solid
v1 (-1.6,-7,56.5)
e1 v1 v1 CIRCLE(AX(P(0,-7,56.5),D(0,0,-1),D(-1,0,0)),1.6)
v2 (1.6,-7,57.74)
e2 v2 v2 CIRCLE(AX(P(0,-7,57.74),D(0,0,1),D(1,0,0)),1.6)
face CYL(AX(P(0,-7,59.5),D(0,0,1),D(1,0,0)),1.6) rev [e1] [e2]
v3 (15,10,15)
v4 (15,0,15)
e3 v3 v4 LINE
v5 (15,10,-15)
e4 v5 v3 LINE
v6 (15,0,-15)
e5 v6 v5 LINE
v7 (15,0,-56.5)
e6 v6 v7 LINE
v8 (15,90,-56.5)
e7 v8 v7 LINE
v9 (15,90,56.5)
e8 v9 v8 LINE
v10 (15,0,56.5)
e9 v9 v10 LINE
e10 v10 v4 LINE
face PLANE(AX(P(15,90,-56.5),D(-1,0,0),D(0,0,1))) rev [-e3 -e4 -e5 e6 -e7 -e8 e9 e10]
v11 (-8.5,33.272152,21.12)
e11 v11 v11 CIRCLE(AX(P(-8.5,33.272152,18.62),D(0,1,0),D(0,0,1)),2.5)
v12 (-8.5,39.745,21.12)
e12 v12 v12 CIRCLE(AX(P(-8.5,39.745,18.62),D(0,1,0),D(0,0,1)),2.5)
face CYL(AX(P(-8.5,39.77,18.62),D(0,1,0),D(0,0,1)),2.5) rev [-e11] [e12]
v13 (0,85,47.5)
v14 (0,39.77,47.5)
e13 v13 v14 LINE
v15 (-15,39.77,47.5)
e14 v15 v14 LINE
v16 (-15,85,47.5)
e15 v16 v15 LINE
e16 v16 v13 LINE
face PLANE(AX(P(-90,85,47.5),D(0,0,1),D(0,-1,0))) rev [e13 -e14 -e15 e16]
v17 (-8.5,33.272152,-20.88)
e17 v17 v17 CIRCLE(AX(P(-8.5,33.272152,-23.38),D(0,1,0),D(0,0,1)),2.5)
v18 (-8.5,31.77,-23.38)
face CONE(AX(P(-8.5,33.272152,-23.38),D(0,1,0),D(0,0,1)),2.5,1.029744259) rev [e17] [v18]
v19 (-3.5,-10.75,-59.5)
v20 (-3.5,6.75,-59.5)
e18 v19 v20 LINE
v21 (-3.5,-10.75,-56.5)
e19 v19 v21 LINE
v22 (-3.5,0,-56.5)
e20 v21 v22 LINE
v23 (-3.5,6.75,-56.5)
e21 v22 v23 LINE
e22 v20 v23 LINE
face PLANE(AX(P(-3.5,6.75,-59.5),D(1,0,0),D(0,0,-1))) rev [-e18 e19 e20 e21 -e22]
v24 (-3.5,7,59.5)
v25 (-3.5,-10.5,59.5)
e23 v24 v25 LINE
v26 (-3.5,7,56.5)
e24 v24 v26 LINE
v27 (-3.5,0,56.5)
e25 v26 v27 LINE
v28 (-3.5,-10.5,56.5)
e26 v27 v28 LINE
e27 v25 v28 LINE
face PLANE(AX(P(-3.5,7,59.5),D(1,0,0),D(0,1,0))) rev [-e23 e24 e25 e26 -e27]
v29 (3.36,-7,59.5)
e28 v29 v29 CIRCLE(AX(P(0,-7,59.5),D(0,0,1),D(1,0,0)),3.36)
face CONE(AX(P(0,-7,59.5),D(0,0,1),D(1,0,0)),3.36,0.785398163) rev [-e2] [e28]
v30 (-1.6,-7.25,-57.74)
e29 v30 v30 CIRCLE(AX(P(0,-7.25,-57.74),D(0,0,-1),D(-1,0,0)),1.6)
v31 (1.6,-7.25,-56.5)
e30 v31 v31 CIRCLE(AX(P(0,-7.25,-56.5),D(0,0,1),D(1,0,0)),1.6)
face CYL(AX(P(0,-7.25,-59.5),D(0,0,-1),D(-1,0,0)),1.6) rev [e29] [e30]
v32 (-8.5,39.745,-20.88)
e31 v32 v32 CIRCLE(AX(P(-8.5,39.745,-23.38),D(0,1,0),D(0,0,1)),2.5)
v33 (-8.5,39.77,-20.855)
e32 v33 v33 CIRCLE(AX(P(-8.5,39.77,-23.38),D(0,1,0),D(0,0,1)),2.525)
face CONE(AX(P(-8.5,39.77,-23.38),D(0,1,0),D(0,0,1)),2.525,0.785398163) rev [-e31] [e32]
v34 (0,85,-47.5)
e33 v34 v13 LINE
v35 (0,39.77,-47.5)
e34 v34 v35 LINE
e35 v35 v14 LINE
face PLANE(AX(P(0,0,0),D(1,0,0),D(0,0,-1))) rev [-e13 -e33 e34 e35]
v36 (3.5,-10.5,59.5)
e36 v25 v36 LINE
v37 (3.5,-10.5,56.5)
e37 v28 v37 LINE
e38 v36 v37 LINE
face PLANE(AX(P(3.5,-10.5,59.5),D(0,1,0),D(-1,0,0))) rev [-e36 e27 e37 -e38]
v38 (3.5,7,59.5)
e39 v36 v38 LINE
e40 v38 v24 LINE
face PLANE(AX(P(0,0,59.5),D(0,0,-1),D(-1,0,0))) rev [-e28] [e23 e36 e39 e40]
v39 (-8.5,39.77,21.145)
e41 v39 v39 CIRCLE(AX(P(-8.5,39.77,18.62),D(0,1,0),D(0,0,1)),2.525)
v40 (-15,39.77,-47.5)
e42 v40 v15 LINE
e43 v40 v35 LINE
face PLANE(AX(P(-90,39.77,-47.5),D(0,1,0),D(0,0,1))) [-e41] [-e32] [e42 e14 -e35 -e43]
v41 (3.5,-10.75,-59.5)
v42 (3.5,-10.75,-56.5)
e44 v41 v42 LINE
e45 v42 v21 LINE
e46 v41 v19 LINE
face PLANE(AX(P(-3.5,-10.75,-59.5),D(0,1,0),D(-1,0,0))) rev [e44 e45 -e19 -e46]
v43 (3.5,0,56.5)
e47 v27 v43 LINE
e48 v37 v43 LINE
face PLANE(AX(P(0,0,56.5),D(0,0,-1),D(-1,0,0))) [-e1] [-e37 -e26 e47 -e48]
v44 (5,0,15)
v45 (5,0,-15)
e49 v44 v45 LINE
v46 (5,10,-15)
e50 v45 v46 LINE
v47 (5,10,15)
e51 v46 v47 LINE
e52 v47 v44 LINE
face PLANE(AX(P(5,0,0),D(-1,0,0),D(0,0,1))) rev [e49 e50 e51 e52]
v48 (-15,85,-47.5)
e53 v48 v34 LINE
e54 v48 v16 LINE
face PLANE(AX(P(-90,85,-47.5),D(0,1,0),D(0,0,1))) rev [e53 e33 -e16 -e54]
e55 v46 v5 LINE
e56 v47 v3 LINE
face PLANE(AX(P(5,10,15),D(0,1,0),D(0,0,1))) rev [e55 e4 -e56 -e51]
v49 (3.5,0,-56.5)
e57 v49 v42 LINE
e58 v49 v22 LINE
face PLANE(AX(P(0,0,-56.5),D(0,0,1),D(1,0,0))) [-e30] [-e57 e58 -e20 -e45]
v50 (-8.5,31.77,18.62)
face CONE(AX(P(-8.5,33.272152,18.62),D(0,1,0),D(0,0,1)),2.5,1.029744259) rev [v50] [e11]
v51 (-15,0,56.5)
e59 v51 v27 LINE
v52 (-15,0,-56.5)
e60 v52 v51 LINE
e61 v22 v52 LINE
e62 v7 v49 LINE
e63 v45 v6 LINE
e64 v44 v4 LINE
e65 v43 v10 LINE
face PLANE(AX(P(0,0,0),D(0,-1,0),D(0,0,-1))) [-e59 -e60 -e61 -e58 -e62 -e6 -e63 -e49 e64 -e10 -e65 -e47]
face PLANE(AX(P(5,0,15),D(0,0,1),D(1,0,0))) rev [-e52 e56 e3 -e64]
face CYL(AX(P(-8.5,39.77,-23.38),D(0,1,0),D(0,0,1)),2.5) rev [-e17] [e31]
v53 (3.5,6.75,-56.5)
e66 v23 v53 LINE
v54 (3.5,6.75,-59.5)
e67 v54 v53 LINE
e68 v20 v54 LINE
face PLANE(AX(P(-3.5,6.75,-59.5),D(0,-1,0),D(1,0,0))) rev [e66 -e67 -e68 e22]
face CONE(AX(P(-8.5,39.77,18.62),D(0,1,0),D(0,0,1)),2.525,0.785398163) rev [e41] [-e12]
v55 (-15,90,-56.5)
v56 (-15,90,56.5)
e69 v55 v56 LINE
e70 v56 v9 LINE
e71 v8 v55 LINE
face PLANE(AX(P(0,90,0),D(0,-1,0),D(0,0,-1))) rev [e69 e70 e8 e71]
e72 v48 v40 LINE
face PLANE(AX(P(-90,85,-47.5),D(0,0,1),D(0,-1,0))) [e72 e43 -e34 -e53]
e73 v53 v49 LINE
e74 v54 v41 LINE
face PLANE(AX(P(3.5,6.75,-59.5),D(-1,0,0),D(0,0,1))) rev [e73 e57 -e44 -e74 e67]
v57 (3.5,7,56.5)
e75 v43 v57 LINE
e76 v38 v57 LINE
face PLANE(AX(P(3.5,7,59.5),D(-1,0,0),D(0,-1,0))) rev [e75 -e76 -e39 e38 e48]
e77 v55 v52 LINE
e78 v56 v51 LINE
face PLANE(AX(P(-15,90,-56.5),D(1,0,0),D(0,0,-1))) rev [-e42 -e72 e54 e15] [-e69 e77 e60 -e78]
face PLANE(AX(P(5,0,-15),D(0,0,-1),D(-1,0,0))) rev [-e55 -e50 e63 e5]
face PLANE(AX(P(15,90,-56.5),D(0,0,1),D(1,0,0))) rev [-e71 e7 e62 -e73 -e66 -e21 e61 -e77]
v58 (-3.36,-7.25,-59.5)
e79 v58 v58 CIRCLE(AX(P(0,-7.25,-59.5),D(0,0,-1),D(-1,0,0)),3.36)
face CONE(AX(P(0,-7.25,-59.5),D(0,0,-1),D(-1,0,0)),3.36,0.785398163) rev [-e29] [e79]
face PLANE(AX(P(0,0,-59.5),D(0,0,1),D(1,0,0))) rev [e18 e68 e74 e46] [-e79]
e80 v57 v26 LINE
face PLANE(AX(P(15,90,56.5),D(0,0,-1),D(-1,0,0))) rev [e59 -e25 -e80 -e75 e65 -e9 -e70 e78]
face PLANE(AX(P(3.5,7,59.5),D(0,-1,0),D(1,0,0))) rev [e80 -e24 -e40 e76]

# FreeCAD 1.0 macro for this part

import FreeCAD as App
import Part
import Sketcher

V = App.Vector


def add_polygon(sketch, points):
    """Adds a closed chain of lines whose ends are joined by coincident constraints."""
    first, n = sketch.GeometryCount, len(points)
    for a, b in zip(points, points[1:] + points[:1]):
        sketch.addGeometry(Part.LineSegment(App.Vector(*a, 0), App.Vector(*b, 0)), False)
    for i in range(n):
        sketch.addConstraint(Sketcher.Constraint("Coincident", first + i, 2, first + (i + 1) % n, 1))

doc = App.newDocument("Part")
body = doc.addObject("PartDesign::Body", "Body")

# Sketch on XZ plane
sketch1 = body.newObject("Sketcher::SketchObject", "Sketch")
sketch1.AttachmentSupport = (doc.getObject("XZ_Plane"), [""])
sketch1.MapMode = "FlatFace"
add_polygon(sketch1, [(-15, -56), (-15, 56), (15, 56), (15, -56)])  # lines 0-3
sketch1.addConstraint(Sketcher.Constraint("Vertical", 0))
sketch1.addConstraint(Sketcher.Constraint("Horizontal", 1))
sketch1.addConstraint(Sketcher.Constraint("Vertical", 2))
sketch1.addConstraint(Sketcher.Constraint("Horizontal", 3))
sketch1.addConstraint(Sketcher.Constraint("Symmetric", 0, 2, 2, 2, -1, 1))
sketch1.addConstraint(Sketcher.Constraint("DistanceX", 1, 1, 1, 2, 30.0))
sketch1.addConstraint(Sketcher.Constraint("DistanceY", 0, 1, 0, 2, 113.0))
pad1 = body.newObject("PartDesign::Pad", "Pad")
pad1.Profile = sketch1
pad1.Length = 90
pad1.Reversed = True

# Sketch on YZ plane
sketch2 = body.newObject("Sketcher::SketchObject", "Sketch001")
sketch2.AttachmentSupport = (doc.getObject("YZ_Plane"), [""])
sketch2.MapMode = "FlatFace"
add_polygon(sketch2, [(85, 48), (40, 48), (40, -48), (85, -48)])  # lines 0-3
sketch2.addConstraint(Sketcher.Constraint("Horizontal", 0))
sketch2.addConstraint(Sketcher.Constraint("Vertical", 1))
sketch2.addConstraint(Sketcher.Constraint("Horizontal", 2))
sketch2.addConstraint(Sketcher.Constraint("Vertical", 3))
sketch2.addConstraint(Sketcher.Constraint("DistanceY", 1, 2, 1, 1, 95.0))
sketch2.addConstraint(Sketcher.Constraint("DistanceX", -1, 1, 2, 2, 85.0))
sketch2.addConstraint(Sketcher.Constraint("DistanceX", 0, 2, 0, 1, 45.23))
sketch2.addConstraint(Sketcher.Constraint("DistanceY", -1, 1, 0, 2, 47.5))
pocket1 = body.newObject("PartDesign::Pocket", "Pocket")
pocket1.Profile = sketch2
pocket1.Length = 90

# Sketch on YZ plane
sketch3 = body.newObject("Sketcher::SketchObject", "Sketch002")
sketch3.AttachmentSupport = (doc.getObject("YZ_Plane"), [""])
sketch3.MapMode = "FlatFace"
sketch3.AttachmentOffset = App.Placement(V(0, 0, 15), App.Rotation())
add_polygon(sketch3, [(10, 15), (0, 15), (0, -15), (10, -15)])  # lines 0-3
sketch3.addConstraint(Sketcher.Constraint("Horizontal", 0))
sketch3.addConstraint(Sketcher.Constraint("Vertical", 1))
sketch3.addConstraint(Sketcher.Constraint("Horizontal", 2))
sketch3.addConstraint(Sketcher.Constraint("Vertical", 3))
sketch3.addConstraint(Sketcher.Constraint("Symmetric", 0, 2, 1, 2, -1, 1))
sketch3.addConstraint(Sketcher.Constraint("DistanceX", 0, 2, 0, 1, 10.0))
sketch3.addConstraint(Sketcher.Constraint("DistanceY", 1, 2, 1, 1, 30.0))
pocket2 = body.newObject("PartDesign::Pocket", "Pocket001")
pocket2.Profile = sketch3
pocket2.Length = 10

# Sketch on XZ plane
sketch4 = body.newObject("Sketcher::SketchObject", "Sketch003")
sketch4.AttachmentSupport = (doc.getObject("XZ_Plane"), [""])
sketch4.MapMode = "FlatFace"
sketch4.AttachmentOffset = App.Placement(V(0, 0, -39.77), App.Rotation())
sketch4.addGeometry(Part.Circle(V(-8.5, -23.4, 0), V(0, 0, 1), 2.5), False)
sketch4.addGeometry(Part.Circle(V(-8.5, 18.6, 0), V(0, 0, 1), 2.5), False)
sketch4.addConstraint(Sketcher.Constraint("Equal", 0, 1))
sketch4.addConstraint(Sketcher.Constraint("Vertical", 0, 3, 1, 3))
sketch4.addConstraint(Sketcher.Constraint("Diameter", 0, 5.0))
sketch4.addConstraint(Sketcher.Constraint("DistanceY", 0, 3, 1, 3, 42.0))
sketch4.addConstraint(Sketcher.Constraint("DistanceX", 0, 3, -1, 1, 8.5))
sketch4.addConstraint(Sketcher.Constraint("DistanceY", 0, 3, -1, 1, 23.38))
doc.recompute()
hole = body.newObject("PartDesign::Hole", "Hole")
hole.Profile = sketch4
hole.ThreadType = "None"
hole.Diameter = 5
hole.DepthType = "Dimension"
hole.Depth = 6.497848
hole.DrillPoint = "Angled"
hole.DrillPointAngle = 118
hole.HoleCutType = "Countersink"
hole.HoleCutDiameter = 5.05
hole.HoleCutCountersinkAngle = 90
hole.Reversed = True

# Sketch on XY plane
sketch5 = body.newObject("Sketcher::SketchObject", "Sketch004")
sketch5.AttachmentSupport = (doc.getObject("XY_Plane"), [""])
sketch5.MapMode = "FlatFace"
sketch5.AttachmentOffset = App.Placement(V(0, 0, -56.5), App.Rotation())
add_polygon(sketch5, [(4, 7), (4, -11), (-4, -11), (-4, 7)])  # lines 0-3
sketch5.addConstraint(Sketcher.Constraint("Vertical", 0))
sketch5.addConstraint(Sketcher.Constraint("Horizontal", 1))
sketch5.addConstraint(Sketcher.Constraint("Vertical", 2))
sketch5.addConstraint(Sketcher.Constraint("Horizontal", 3))
sketch5.addConstraint(Sketcher.Constraint("DistanceX", 1, 2, 1, 1, 7.0))
sketch5.addConstraint(Sketcher.Constraint("DistanceY", 0, 2, 0, 1, 17.5))
sketch5.addConstraint(Sketcher.Constraint("DistanceX", -1, 1, 0, 2, 3.5))
sketch5.addConstraint(Sketcher.Constraint("DistanceY", 0, 2, -1, 1, 10.75))
pad2 = body.newObject("PartDesign::Pad", "Pad001")
pad2.Profile = sketch5
pad2.Length = 3
pad2.Reversed = True

# Sketch on XY plane
sketch6 = body.newObject("Sketcher::SketchObject", "Sketch005")
sketch6.AttachmentSupport = (doc.getObject("XY_Plane"), [""])
sketch6.MapMode = "FlatFace"
sketch6.AttachmentOffset = App.Placement(V(0, 0, -59.5), App.Rotation())
sketch6.addGeometry(Part.Circle(V(0, -7.2, 0), V(0, 0, 1), 1.6), False)
sketch6.addConstraint(Sketcher.Constraint("PointOnObject", 0, 3, -2))
sketch6.addConstraint(Sketcher.Constraint("Diameter", 0, 3.2))
sketch6.addConstraint(Sketcher.Constraint("DistanceY", 0, 3, -1, 1, 7.25))
doc.recompute()
hole2 = body.newObject("PartDesign::Hole", "Hole001")
hole2.Profile = sketch6
hole2.ThreadType = "None"
hole2.Diameter = 3.2
hole2.DepthType = "Dimension"
hole2.Depth = 7.238623
hole2.DrillPoint = "Angled"
hole2.DrillPointAngle = 118
hole2.HoleCutType = "Countersink"
hole2.HoleCutDiameter = 6.72
hole2.HoleCutCountersinkAngle = 90
hole2.Reversed = True

# Sketch on XY plane
sketch7 = body.newObject("Sketcher::SketchObject", "Sketch006")
sketch7.AttachmentSupport = (doc.getObject("XY_Plane"), [""])
sketch7.MapMode = "FlatFace"
sketch7.AttachmentOffset = App.Placement(V(0, 0, 56.5), App.Rotation())
add_polygon(sketch7, [(-4, 7), (-4, -10), (4, -10), (4, 7)])  # lines 0-3
sketch7.addConstraint(Sketcher.Constraint("Vertical", 0))
sketch7.addConstraint(Sketcher.Constraint("Horizontal", 1))
sketch7.addConstraint(Sketcher.Constraint("Vertical", 2))
sketch7.addConstraint(Sketcher.Constraint("Horizontal", 3))
sketch7.addConstraint(Sketcher.Constraint("DistanceX", 1, 1, 1, 2, 7.0))
sketch7.addConstraint(Sketcher.Constraint("DistanceY", 0, 2, 0, 1, 17.5))
sketch7.addConstraint(Sketcher.Constraint("DistanceY", -1, 1, 2, 2, 7.0))
sketch7.addConstraint(Sketcher.Constraint("DistanceX", 0, 2, -1, 1, 3.5))
pad3 = body.newObject("PartDesign::Pad", "Pad002")
pad3.Profile = sketch7
pad3.Length = 3

# Sketch on XY plane
sketch8 = body.newObject("Sketcher::SketchObject", "Sketch007")
sketch8.AttachmentSupport = (doc.getObject("XY_Plane"), [""])
sketch8.MapMode = "FlatFace"
sketch8.AttachmentOffset = App.Placement(V(0, 0, 59.5), App.Rotation())
sketch8.addGeometry(Part.Circle(V(0, -7, 0), V(0, 0, 1), 1.6), False)
sketch8.addConstraint(Sketcher.Constraint("PointOnObject", 0, 3, -2))
sketch8.addConstraint(Sketcher.Constraint("Diameter", 0, 3.2))
sketch8.addConstraint(Sketcher.Constraint("DistanceY", 0, 3, -1, 1, 7.0))
doc.recompute()
hole3 = body.newObject("PartDesign::Hole", "Hole002")
hole3.Profile = sketch8
hole3.ThreadType = "None"
hole3.Diameter = 3.2
hole3.DepthType = "Dimension"
hole3.Depth = 7.238623
hole3.DrillPoint = "Angled"
hole3.DrillPointAngle = 118
hole3.HoleCutType = "Countersink"
hole3.HoleCutDiameter = 6.72
hole3.HoleCutCountersinkAngle = 90

doc.recompute()
